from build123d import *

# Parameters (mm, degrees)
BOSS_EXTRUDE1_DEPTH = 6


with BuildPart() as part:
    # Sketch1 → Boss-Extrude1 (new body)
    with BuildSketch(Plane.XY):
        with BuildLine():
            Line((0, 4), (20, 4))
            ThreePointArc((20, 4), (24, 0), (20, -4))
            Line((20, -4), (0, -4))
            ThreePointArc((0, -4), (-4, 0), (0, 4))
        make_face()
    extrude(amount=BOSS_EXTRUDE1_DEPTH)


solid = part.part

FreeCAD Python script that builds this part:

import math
import FreeCAD as App
import Part
import Sketcher
Q = App.Units.Quantity

doc = App.newDocument("Part")
body = doc.addObject("PartDesign::Body", "Body")

# Sketch on XY plane
sketch1 = body.newObject("Sketcher::SketchObject", "Sketch")
sketch1.AttachmentSupport = (doc.getObject("XY_Plane"), [""])
sketch1.MapMode = "FlatFace"
sketch1.addGeometry([
    Part.LineSegment(App.Vector(20, 4, 0), App.Vector(0, 4, 0)),
    Part.ArcOfCircle(Part.Circle(App.Vector(0, 0, 0), App.Vector(0, 0, 1), 4), math.radians(90), math.radians(270)),
    Part.LineSegment(App.Vector(0, -4, 0), App.Vector(20, -4, 0)),
    Part.ArcOfCircle(Part.Circle(App.Vector(20, 0, 0), App.Vector(0, 0, 1), 4), math.radians(-90), math.radians(90)),
], False)
sketch1.addConstraint([
    Sketcher.Constraint("Tangent", 0, 2, 1, 1),
    Sketcher.Constraint("Tangent", 1, 2, 2, 1),
    Sketcher.Constraint("Tangent", 2, 2, 3, 1),
    Sketcher.Constraint("Tangent", 3, 2, 0, 1),
    Sketcher.Constraint("Horizontal", 0),
    Sketcher.Constraint("Horizontal", 2),
    Sketcher.Constraint("Coincident", 1, 3, -1, 1),
    Sketcher.Constraint("Radius", 1, Q("4 mm")),
    Sketcher.Constraint("DistanceX", 0, 2, 0, 1, Q("20 mm")),
])
pad1 = body.newObject("PartDesign::Pad", "Pad")
pad1.Profile = sketch1
pad1.Length = 6

doc.recompute()
